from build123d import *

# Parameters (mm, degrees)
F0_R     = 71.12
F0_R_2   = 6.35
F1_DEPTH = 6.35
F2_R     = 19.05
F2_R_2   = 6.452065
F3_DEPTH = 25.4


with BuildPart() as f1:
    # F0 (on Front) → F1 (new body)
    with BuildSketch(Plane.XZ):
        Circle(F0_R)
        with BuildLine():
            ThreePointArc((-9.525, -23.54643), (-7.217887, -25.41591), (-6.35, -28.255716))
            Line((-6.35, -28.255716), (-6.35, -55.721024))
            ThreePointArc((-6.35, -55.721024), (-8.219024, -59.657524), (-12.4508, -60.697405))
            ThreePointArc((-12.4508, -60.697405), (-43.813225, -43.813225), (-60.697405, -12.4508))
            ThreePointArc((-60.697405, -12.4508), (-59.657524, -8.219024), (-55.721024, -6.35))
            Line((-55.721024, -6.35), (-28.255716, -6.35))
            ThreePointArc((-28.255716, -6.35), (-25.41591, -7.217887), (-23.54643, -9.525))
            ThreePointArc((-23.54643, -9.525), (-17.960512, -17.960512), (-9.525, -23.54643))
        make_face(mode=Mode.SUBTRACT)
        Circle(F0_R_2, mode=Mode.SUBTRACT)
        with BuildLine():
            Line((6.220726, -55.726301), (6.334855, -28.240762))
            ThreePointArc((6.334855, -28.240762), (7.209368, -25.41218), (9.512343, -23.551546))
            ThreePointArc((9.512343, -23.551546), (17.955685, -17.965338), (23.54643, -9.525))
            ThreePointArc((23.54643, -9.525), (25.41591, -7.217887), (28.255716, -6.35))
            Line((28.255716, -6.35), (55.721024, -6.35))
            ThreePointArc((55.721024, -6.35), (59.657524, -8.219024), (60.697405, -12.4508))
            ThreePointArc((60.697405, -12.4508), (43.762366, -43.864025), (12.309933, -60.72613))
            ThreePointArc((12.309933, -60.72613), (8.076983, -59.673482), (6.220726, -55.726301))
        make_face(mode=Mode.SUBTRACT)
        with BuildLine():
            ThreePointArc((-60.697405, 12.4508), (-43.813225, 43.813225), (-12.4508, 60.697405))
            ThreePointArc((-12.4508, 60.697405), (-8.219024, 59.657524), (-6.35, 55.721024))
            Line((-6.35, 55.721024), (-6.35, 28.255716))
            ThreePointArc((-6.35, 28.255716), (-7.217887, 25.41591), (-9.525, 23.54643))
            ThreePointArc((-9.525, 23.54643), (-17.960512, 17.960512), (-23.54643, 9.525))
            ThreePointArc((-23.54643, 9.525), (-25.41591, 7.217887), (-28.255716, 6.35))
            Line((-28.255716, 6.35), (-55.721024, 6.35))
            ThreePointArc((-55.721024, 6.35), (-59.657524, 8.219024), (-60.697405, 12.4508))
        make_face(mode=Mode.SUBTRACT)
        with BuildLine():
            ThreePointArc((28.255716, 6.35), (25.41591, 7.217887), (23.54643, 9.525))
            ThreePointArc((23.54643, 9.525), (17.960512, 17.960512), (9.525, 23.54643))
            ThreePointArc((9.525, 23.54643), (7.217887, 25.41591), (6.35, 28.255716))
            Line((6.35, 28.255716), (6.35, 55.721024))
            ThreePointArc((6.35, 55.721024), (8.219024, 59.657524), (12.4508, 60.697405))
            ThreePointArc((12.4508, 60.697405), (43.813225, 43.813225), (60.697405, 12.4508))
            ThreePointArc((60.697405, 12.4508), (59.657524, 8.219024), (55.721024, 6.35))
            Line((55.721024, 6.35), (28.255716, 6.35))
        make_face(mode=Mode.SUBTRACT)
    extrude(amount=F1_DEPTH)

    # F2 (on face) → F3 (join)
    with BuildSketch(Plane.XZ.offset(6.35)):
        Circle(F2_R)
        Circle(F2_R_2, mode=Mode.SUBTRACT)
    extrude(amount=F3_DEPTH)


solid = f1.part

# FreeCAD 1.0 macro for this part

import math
import FreeCAD as App
import Part
import Sketcher
from FreeCAD import Vector
Q = App.Units.Quantity

doc = App.newDocument("Part")
body = doc.addObject("PartDesign::Body", "Body")

sketch1 = doc.addObject("Sketcher::SketchObject", "Sketch")
body.addObject(sketch1)
sketch1.AttachmentSupport = (doc.XZ_Plane, [""])
sketch1.MapMode = "FlatFace"
sketch1.addGeometry([
    Part.Circle(Vector(0, 0, 0), Vector(0, 0, 1), 71),
    Part.ArcOfCircle(Part.Circle(Vector(0, 0, 0), Vector(0, 0, 1), 25), math.radians(-158), math.radians(-112)),
    Part.ArcOfCircle(Part.Circle(Vector(-11, -28, 0), Vector(0, 0, 1), 5), math.radians(0), math.radians(68)),
    Part.LineSegment(Vector(-6, -28, 0), Vector(-6, -56, 0)),
    Part.ArcOfCircle(Part.Circle(Vector(-11, -56, 0), Vector(0, 0, 1), 5), math.radians(-102), math.radians(0)),
    Part.ArcOfCircle(Part.Circle(Vector(0, 0, 0), Vector(0, 0, 1), 62), math.radians(-168), math.radians(-102)),
    Part.ArcOfCircle(Part.Circle(Vector(-56, -11, 0), Vector(0, 0, 1), 5), math.radians(90), math.radians(192)),
    Part.LineSegment(Vector(-56, -6, 0), Vector(-28, -6, 0)),
    Part.ArcOfCircle(Part.Circle(Vector(-28, -11, 0), Vector(0, 0, 1), 5), math.radians(22), math.radians(90)),
    Part.ArcOfCircle(Part.Circle(Vector(11, -56, 0), Vector(0, 0, 1), 5), math.radians(180), math.radians(281)),
    Part.LineSegment(Vector(6, -56, 0), Vector(6, -28, 0)),
    Part.ArcOfCircle(Part.Circle(Vector(11, -28, 0), Vector(0, 0, 1), 5), math.radians(112), math.radians(180)),
    Part.ArcOfCircle(Part.Circle(Vector(0, 0, 0), Vector(0, 0, 1), 25), math.radians(-68), math.radians(-22)),
    Part.ArcOfCircle(Part.Circle(Vector(28, -11, 0), Vector(0, 0, 1), 5), math.radians(90), math.radians(158)),
    Part.LineSegment(Vector(28, -6, 0), Vector(56, -6, 0)),
    Part.ArcOfCircle(Part.Circle(Vector(56, -11, 0), Vector(0, 0, 1), 5), math.radians(-12), math.radians(90)),
    Part.ArcOfCircle(Part.Circle(Vector(0, 0, 0), Vector(0, 0, 1), 62), math.radians(-79), math.radians(-12)),
    Part.ArcOfCircle(Part.Circle(Vector(-56, 11, 0), Vector(0, 0, 1), 5), math.radians(168), math.radians(270)),
    Part.ArcOfCircle(Part.Circle(Vector(0, 0, 0), Vector(0, 0, 1), 62), math.radians(102), math.radians(168)),
    Part.ArcOfCircle(Part.Circle(Vector(-11, 56, 0), Vector(0, 0, 1), 5), math.radians(0), math.radians(102)),
    Part.LineSegment(Vector(-6, 56, 0), Vector(-6, 28, 0)),
    Part.ArcOfCircle(Part.Circle(Vector(-11, 28, 0), Vector(0, 0, 1), 5), math.radians(-68), math.radians(0)),
    Part.ArcOfCircle(Part.Circle(Vector(0, 0, 0), Vector(0, 0, 1), 25), math.radians(112), math.radians(158)),
    Part.ArcOfCircle(Part.Circle(Vector(-28, 11, 0), Vector(0, 0, 1), 5), math.radians(-90), math.radians(-22)),
    Part.LineSegment(Vector(-28, 6, 0), Vector(-56, 6, 0)),
    Part.Circle(Vector(0, 0, 0), Vector(0, 0, 1), 6),
    Part.LineSegment(Vector(56, 6, 0), Vector(28, 6, 0)),
    Part.ArcOfCircle(Part.Circle(Vector(28, 11, 0), Vector(0, 0, 1), 5), math.radians(-158), math.radians(-90)),
    Part.ArcOfCircle(Part.Circle(Vector(0, 0, 0), Vector(0, 0, 1), 25), math.radians(22), math.radians(68)),
    Part.ArcOfCircle(Part.Circle(Vector(11, 28, 0), Vector(0, 0, 1), 5), math.radians(-180), math.radians(-112)),
    Part.LineSegment(Vector(6, 28, 0), Vector(6, 56, 0)),
    Part.ArcOfCircle(Part.Circle(Vector(11, 56, 0), Vector(0, 0, 1), 5), math.radians(78), math.radians(180)),
    Part.ArcOfCircle(Part.Circle(Vector(0, 0, 0), Vector(0, 0, 1), 62), math.radians(12), math.radians(78)),
    Part.ArcOfCircle(Part.Circle(Vector(56, 11, 0), Vector(0, 0, 1), 5), math.radians(-90), math.radians(12)),
], False)
sketch1.addConstraint([
    Sketcher.Constraint("Tangent", 1, 2, 2, 2),
    Sketcher.Constraint("Tangent", 2, 1, 3, 1),
    Sketcher.Constraint("Tangent", 3, 2, 4, 2),
    Sketcher.Constraint("Tangent", 4, 1, 5, 2),
    Sketcher.Constraint("Tangent", 5, 1, 6, 2),
    Sketcher.Constraint("Tangent", 6, 1, 7, 1),
    Sketcher.Constraint("Tangent", 7, 2, 8, 2),
    Sketcher.Constraint("Tangent", 8, 1, 1, 1),
    Sketcher.Constraint("Tangent", 9, 1, 10, 1),
    Sketcher.Constraint("Tangent", 10, 2, 11, 2),
    Sketcher.Constraint("Tangent", 11, 1, 12, 1),
    Sketcher.Constraint("Tangent", 12, 2, 13, 2),
    Sketcher.Constraint("Tangent", 13, 1, 14, 1),
    Sketcher.Constraint("Tangent", 14, 2, 15, 2),
    Sketcher.Constraint("Tangent", 15, 1, 16, 2),
    Sketcher.Constraint("Tangent", 16, 1, 9, 2),
    Sketcher.Constraint("Tangent", 17, 1, 18, 2),
    Sketcher.Constraint("Tangent", 18, 1, 19, 2),
    Sketcher.Constraint("Tangent", 19, 1, 20, 1),
    Sketcher.Constraint("Tangent", 20, 2, 21, 2),
    Sketcher.Constraint("Tangent", 21, 1, 22, 1),
    Sketcher.Constraint("Tangent", 22, 2, 23, 2),
    Sketcher.Constraint("Tangent", 23, 1, 24, 1),
    Sketcher.Constraint("Tangent", 24, 2, 17, 2),
    Sketcher.Constraint("Tangent", 26, 2, 27, 2),
    Sketcher.Constraint("Tangent", 27, 1, 28, 1),
    Sketcher.Constraint("Tangent", 28, 2, 29, 2),
    Sketcher.Constraint("Tangent", 29, 1, 30, 1),
    Sketcher.Constraint("Tangent", 30, 2, 31, 2),
    Sketcher.Constraint("Tangent", 31, 1, 32, 2),
    Sketcher.Constraint("Tangent", 32, 1, 33, 2),
    Sketcher.Constraint("Tangent", 33, 1, 26, 1),
    Sketcher.Constraint("Vertical", 3),
    Sketcher.Constraint("Horizontal", 7),
    Sketcher.Constraint("Horizontal", 14),
    Sketcher.Constraint("Vertical", 20),
    Sketcher.Constraint("Horizontal", 24),
    Sketcher.Constraint("Horizontal", 26),
    Sketcher.Constraint("Vertical", 30),
    Sketcher.Constraint("Coincident", 0, 3, -1, 1),
    Sketcher.Constraint("Coincident", 1, 3, -1, 1),
    Sketcher.Constraint("Coincident", 5, 3, -1, 1),
    Sketcher.Constraint("Coincident", 12, 3, -1, 1),
    Sketcher.Constraint("Coincident", 16, 3, -1, 1),
    Sketcher.Constraint("Coincident", 18, 3, -1, 1),
    Sketcher.Constraint("Coincident", 22, 3, -1, 1),
    Sketcher.Constraint("Coincident", 25, 3, -1, 1),
    Sketcher.Constraint("Coincident", 28, 3, -1, 1),
    Sketcher.Constraint("Coincident", 32, 3, -1, 1),
    Sketcher.Constraint("Equal", 4, 6),
    Sketcher.Constraint("Equal", 2, 8),
    Sketcher.Constraint("Equal", 6, 9),
    Sketcher.Constraint("Equal", 9, 11),
    Sketcher.Constraint("Equal", 8, 13),
    Sketcher.Constraint("Equal", 11, 15),
    Sketcher.Constraint("Equal", 5, 16),
    Sketcher.Constraint("Equal", 15, 17),
    Sketcher.Constraint("Equal", 16, 18),
    Sketcher.Constraint("Equal", 17, 19),
    Sketcher.Constraint("Equal", 13, 21),
    Sketcher.Constraint("Equal", 1, 22),
    Sketcher.Constraint("Equal", 21, 23),
    Sketcher.Constraint("Equal", 23, 27),
    Sketcher.Constraint("Equal", 22, 28),
    Sketcher.Constraint("Equal", 27, 29),
    Sketcher.Constraint("Equal", 19, 31),
    Sketcher.Constraint("Equal", 18, 32),
    Sketcher.Constraint("Equal", 31, 33),
    Sketcher.Constraint("Symmetric", 13, 3, 23, 3, -1, 1),
    Sketcher.Constraint("Horizontal", 8, 3, 13, 3),
    Sketcher.Constraint("Horizontal", 23, 3, 27, 3),
    Sketcher.Constraint("Horizontal", 21, 3, 29, 3),
    Sketcher.Constraint("Vertical", 4, 3, 19, 3),
    Sketcher.Constraint("Equal", 26, 3),
    Sketcher.Constraint("Radius", 1, Q("1.0000001 in")),
    Sketcher.Constraint("Diameter", 0, Q("5.6 in")),
    Sketcher.Constraint("Diameter", 25, Q("0.5 in")),
    Sketcher.Constraint("Radius", 2, Q("0.2000001 in")),
    Sketcher.Constraint("Radius", 4, Q("0.2 in")),
    Sketcher.Constraint("DistanceY", 6, 3, 17, 3, Q("0.9 in")),
    Sketcher.Constraint("Radius", 5, Q("61.961258 mm")),
    Sketcher.Constraint("DistanceY", 9, 1, -1, 1, Q("55.726301 mm")),
    Sketcher.Constraint("DistanceX", -1, 1, 9, 3, Q("11.300682 mm")),
])
pad1 = doc.addObject("PartDesign::Pad", "Pad")
body.addObject(pad1)
pad1.Profile = sketch1
pad1.Length = Q("0.25 in")

sketch2 = doc.addObject("Sketcher::SketchObject", "Sketch001")
body.addObject(sketch2)
sketch2.AttachmentSupport = (doc.XZ_Plane, [""])
sketch2.MapMode = "FlatFace"
sketch2.AttachmentOffset = App.Placement(Vector(0, 0, 0.25 * 25.4), App.Rotation())
sketch2.addGeometry([
    Part.Circle(Vector(0, 0, 0), Vector(0, 0, 1), 19),
    Part.Circle(Vector(0, 0, 0), Vector(0, 0, 1), 6),
], False)
sketch2.addConstraint([
    Sketcher.Constraint("Coincident", 0, 3, -1, 1),
    Sketcher.Constraint("Coincident", 1, 3, -1, 1),
    Sketcher.Constraint("Diameter", 0, Q("1.5 in")),
    Sketcher.Constraint("Diameter", 1, Q("12.90413 mm")),
])
pad2 = doc.addObject("PartDesign::Pad", "Pad001")
body.addObject(pad2)
pad2.Profile = sketch2
pad2.Length = Q("1 in")

doc.recompute()
